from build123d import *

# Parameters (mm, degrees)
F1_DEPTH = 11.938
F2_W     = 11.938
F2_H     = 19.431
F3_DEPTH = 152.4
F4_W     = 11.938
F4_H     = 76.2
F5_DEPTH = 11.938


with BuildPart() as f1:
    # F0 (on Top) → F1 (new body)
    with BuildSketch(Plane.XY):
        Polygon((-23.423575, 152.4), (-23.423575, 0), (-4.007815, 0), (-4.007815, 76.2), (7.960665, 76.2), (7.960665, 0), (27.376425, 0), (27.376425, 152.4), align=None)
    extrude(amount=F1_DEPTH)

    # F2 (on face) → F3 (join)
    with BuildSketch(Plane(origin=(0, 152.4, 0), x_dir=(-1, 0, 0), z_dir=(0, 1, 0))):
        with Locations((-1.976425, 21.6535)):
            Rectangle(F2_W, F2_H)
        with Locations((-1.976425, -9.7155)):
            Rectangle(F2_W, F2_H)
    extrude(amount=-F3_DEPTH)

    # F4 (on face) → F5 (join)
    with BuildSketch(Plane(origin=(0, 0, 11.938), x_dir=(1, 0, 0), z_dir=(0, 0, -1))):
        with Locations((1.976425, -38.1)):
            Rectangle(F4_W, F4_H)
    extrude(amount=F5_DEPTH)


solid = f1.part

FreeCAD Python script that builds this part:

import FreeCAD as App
import Part
import Sketcher
from FreeCAD import Vector
Q = App.Units.Quantity

doc = App.newDocument("Part")
body = doc.addObject("PartDesign::Body", "Body")

sketch1 = doc.addObject("Sketcher::SketchObject", "Sketch")
body.addObject(sketch1)
sketch1.AttachmentSupport = (doc.XY_Plane, [""])
sketch1.MapMode = "FlatFace"
sketch1.addGeometry([
    Part.LineSegment(Vector(-23.423575, 152.4, 0), Vector(-23.423575, 0, 0)),
    Part.LineSegment(Vector(-23.423575, 0, 0), Vector(-4.007815, 0, 0)),
    Part.LineSegment(Vector(-4.007815, 0, 0), Vector(-4.007815, 76.2, 0)),
    Part.LineSegment(Vector(-4.007815, 76.2, 0), Vector(7.960665, 76.2, 0)),
    Part.LineSegment(Vector(7.960665, 76.2, 0), Vector(7.960665, 0, 0)),
    Part.LineSegment(Vector(7.960665, 0, 0), Vector(27.376425, 0, 0)),
    Part.LineSegment(Vector(27.376425, 0, 0), Vector(27.376425, 152.4, 0)),
    Part.LineSegment(Vector(27.376425, 152.4, 0), Vector(-23.423575, 152.4, 0)),
], False)
sketch1.addConstraint([
    Sketcher.Constraint("Coincident", 0, 2, 1, 1),
    Sketcher.Constraint("Coincident", 1, 2, 2, 1),
    Sketcher.Constraint("Coincident", 2, 2, 3, 1),
    Sketcher.Constraint("Coincident", 3, 2, 4, 1),
    Sketcher.Constraint("Coincident", 4, 2, 5, 1),
    Sketcher.Constraint("Coincident", 5, 2, 6, 1),
    Sketcher.Constraint("Coincident", 6, 2, 7, 1),
    Sketcher.Constraint("Coincident", 7, 2, 0, 1),
    Sketcher.Constraint("Vertical", 0),
    Sketcher.Constraint("Horizontal", 1),
    Sketcher.Constraint("Vertical", 2),
    Sketcher.Constraint("Horizontal", 3),
    Sketcher.Constraint("Vertical", 4),
    Sketcher.Constraint("Horizontal", 5),
    Sketcher.Constraint("Vertical", 6),
    Sketcher.Constraint("Horizontal", 7),
    Sketcher.Constraint("PointOnObject", 0, 2, -1),
    Sketcher.Constraint("PointOnObject", 4, 2, -1),
    Sketcher.Constraint("Equal", 1, 5),
    Sketcher.Constraint("DistanceX", 7, 2, 7, 1, Q("2 in")),
    Sketcher.Constraint("DistanceY", 0, 2, 0, 1, Q("6 in")),
    Sketcher.Constraint("DistanceY", 2, 1, 2, 2, Q("3 in")),
    Sketcher.Constraint("DistanceX", 1, 1, 1, 2, Q("0.7644 in")),
    Sketcher.Constraint("DistanceX", 0, 2, -1, 1, Q("23.423575 mm")),
])
pad1 = doc.addObject("PartDesign::Pad", "Pad")
body.addObject(pad1)
pad1.Profile = sketch1
pad1.Length = Q("0.47 in")

sketch2 = doc.addObject("Sketcher::SketchObject", "Sketch001")
body.addObject(sketch2)
sketch2.AttachmentSupport = (doc.XZ_Plane, [""])
sketch2.MapMode = "FlatFace"
sketch2.AttachmentOffset = App.Placement(Vector(0, 0, -6 * 25.4), App.Rotation())
sketch2.addGeometry([
    Part.LineSegment(Vector(7.945425, 31.369, 0), Vector(7.945425, 11.938, 0)),
    Part.LineSegment(Vector(7.945425, 11.938, 0), Vector(-3.992575, 11.938, 0)),
    Part.LineSegment(Vector(-3.992575, 11.938, 0), Vector(-3.992575, 31.369, 0)),
    Part.LineSegment(Vector(-3.992575, 31.369, 0), Vector(7.945425, 31.369, 0)),
    Part.LineSegment(Vector(7.945425, 0, 0), Vector(7.945425, -19.431, 0)),
    Part.LineSegment(Vector(7.945425, -19.431, 0), Vector(-3.992575, -19.431, 0)),
    Part.LineSegment(Vector(-3.992575, -19.431, 0), Vector(-3.992575, 0, 0)),
    Part.LineSegment(Vector(-3.992575, 0, 0), Vector(7.945425, 0, 0)),
], False)
sketch2.addConstraint([
    Sketcher.Constraint("Coincident", 0, 2, 1, 1),
    Sketcher.Constraint("Coincident", 1, 2, 2, 1),
    Sketcher.Constraint("Coincident", 2, 2, 3, 1),
    Sketcher.Constraint("Coincident", 3, 2, 0, 1),
    Sketcher.Constraint("Coincident", 4, 2, 5, 1),
    Sketcher.Constraint("Coincident", 5, 2, 6, 1),
    Sketcher.Constraint("Coincident", 6, 2, 7, 1),
    Sketcher.Constraint("Coincident", 7, 2, 4, 1),
    Sketcher.Constraint("Vertical", 0),
    Sketcher.Constraint("Horizontal", 1),
    Sketcher.Constraint("Vertical", 2),
    Sketcher.Constraint("Horizontal", 3),
    Sketcher.Constraint("Vertical", 4),
    Sketcher.Constraint("Horizontal", 5),
    Sketcher.Constraint("Vertical", 6),
    Sketcher.Constraint("Horizontal", 7),
    Sketcher.Constraint("PointOnObject", 6, 2, -1),
    Sketcher.Constraint("Vertical", 3, 2, 4, 2),
    Sketcher.Constraint("Vertical", 2, 2, 5, 2),
    Sketcher.Constraint("Equal", 2, 4),
    Sketcher.Constraint("DistanceY", 4, 2, 3, 2, Q("2 in")),
    Sketcher.Constraint("DistanceX", 1, 2, 1, 1, Q("0.47 in")),
    Sketcher.Constraint("DistanceY", 0, 2, 0, 1, Q("0.765 in")),
    Sketcher.Constraint("DistanceX", -1, 1, 0, 2, Q("7.945425 mm")),
])
pad2 = doc.addObject("PartDesign::Pad", "Pad001")
body.addObject(pad2)
pad2.Profile = sketch2
pad2.Length = Q("6 in")

sketch3 = doc.addObject("Sketcher::SketchObject", "Sketch002")
body.addObject(sketch3)
sketch3.AttachmentSupport = (doc.XY_Plane, [""])
sketch3.MapMode = "FlatFace"
sketch3.AttachmentOffset = App.Placement(Vector(0, 0, 0.47 * 25.4), App.Rotation())
sketch3.addGeometry([
    Part.LineSegment(Vector(-3.992575, 0, 0), Vector(-3.992575, 76.2, 0)),
    Part.LineSegment(Vector(-3.992575, 76.2, 0), Vector(7.945425, 76.2, 0)),
    Part.LineSegment(Vector(7.945425, 76.2, 0), Vector(7.945425, 0, 0)),
    Part.LineSegment(Vector(7.945425, 0, 0), Vector(-3.992575, 0, 0)),
], False)
sketch3.addConstraint([
    Sketcher.Constraint("Coincident", 0, 2, 1, 1),
    Sketcher.Constraint("Coincident", 1, 2, 2, 1),
    Sketcher.Constraint("Coincident", 2, 2, 3, 1),
    Sketcher.Constraint("Coincident", 3, 2, 0, 1),
    Sketcher.Constraint("Vertical", 0),
    Sketcher.Constraint("Horizontal", 1),
    Sketcher.Constraint("Vertical", 2),
    Sketcher.Constraint("Horizontal", 3),
    Sketcher.Constraint("PointOnObject", 2, 2, -1),
    Sketcher.Constraint("DistanceY", 0, 1, 0, 2, Q("3 in")),
    Sketcher.Constraint("DistanceX", 1, 1, 1, 2, Q("0.47 in")),
    Sketcher.Constraint("DistanceX", 0, 2, -1, 1, Q("3.992575 mm")),
])
pad3 = doc.addObject("PartDesign::Pad", "Pad002")
body.addObject(pad3)
pad3.Profile = sketch3
pad3.Length = Q("0.47 in")
pad3.Reversed = True

doc.recompute()
